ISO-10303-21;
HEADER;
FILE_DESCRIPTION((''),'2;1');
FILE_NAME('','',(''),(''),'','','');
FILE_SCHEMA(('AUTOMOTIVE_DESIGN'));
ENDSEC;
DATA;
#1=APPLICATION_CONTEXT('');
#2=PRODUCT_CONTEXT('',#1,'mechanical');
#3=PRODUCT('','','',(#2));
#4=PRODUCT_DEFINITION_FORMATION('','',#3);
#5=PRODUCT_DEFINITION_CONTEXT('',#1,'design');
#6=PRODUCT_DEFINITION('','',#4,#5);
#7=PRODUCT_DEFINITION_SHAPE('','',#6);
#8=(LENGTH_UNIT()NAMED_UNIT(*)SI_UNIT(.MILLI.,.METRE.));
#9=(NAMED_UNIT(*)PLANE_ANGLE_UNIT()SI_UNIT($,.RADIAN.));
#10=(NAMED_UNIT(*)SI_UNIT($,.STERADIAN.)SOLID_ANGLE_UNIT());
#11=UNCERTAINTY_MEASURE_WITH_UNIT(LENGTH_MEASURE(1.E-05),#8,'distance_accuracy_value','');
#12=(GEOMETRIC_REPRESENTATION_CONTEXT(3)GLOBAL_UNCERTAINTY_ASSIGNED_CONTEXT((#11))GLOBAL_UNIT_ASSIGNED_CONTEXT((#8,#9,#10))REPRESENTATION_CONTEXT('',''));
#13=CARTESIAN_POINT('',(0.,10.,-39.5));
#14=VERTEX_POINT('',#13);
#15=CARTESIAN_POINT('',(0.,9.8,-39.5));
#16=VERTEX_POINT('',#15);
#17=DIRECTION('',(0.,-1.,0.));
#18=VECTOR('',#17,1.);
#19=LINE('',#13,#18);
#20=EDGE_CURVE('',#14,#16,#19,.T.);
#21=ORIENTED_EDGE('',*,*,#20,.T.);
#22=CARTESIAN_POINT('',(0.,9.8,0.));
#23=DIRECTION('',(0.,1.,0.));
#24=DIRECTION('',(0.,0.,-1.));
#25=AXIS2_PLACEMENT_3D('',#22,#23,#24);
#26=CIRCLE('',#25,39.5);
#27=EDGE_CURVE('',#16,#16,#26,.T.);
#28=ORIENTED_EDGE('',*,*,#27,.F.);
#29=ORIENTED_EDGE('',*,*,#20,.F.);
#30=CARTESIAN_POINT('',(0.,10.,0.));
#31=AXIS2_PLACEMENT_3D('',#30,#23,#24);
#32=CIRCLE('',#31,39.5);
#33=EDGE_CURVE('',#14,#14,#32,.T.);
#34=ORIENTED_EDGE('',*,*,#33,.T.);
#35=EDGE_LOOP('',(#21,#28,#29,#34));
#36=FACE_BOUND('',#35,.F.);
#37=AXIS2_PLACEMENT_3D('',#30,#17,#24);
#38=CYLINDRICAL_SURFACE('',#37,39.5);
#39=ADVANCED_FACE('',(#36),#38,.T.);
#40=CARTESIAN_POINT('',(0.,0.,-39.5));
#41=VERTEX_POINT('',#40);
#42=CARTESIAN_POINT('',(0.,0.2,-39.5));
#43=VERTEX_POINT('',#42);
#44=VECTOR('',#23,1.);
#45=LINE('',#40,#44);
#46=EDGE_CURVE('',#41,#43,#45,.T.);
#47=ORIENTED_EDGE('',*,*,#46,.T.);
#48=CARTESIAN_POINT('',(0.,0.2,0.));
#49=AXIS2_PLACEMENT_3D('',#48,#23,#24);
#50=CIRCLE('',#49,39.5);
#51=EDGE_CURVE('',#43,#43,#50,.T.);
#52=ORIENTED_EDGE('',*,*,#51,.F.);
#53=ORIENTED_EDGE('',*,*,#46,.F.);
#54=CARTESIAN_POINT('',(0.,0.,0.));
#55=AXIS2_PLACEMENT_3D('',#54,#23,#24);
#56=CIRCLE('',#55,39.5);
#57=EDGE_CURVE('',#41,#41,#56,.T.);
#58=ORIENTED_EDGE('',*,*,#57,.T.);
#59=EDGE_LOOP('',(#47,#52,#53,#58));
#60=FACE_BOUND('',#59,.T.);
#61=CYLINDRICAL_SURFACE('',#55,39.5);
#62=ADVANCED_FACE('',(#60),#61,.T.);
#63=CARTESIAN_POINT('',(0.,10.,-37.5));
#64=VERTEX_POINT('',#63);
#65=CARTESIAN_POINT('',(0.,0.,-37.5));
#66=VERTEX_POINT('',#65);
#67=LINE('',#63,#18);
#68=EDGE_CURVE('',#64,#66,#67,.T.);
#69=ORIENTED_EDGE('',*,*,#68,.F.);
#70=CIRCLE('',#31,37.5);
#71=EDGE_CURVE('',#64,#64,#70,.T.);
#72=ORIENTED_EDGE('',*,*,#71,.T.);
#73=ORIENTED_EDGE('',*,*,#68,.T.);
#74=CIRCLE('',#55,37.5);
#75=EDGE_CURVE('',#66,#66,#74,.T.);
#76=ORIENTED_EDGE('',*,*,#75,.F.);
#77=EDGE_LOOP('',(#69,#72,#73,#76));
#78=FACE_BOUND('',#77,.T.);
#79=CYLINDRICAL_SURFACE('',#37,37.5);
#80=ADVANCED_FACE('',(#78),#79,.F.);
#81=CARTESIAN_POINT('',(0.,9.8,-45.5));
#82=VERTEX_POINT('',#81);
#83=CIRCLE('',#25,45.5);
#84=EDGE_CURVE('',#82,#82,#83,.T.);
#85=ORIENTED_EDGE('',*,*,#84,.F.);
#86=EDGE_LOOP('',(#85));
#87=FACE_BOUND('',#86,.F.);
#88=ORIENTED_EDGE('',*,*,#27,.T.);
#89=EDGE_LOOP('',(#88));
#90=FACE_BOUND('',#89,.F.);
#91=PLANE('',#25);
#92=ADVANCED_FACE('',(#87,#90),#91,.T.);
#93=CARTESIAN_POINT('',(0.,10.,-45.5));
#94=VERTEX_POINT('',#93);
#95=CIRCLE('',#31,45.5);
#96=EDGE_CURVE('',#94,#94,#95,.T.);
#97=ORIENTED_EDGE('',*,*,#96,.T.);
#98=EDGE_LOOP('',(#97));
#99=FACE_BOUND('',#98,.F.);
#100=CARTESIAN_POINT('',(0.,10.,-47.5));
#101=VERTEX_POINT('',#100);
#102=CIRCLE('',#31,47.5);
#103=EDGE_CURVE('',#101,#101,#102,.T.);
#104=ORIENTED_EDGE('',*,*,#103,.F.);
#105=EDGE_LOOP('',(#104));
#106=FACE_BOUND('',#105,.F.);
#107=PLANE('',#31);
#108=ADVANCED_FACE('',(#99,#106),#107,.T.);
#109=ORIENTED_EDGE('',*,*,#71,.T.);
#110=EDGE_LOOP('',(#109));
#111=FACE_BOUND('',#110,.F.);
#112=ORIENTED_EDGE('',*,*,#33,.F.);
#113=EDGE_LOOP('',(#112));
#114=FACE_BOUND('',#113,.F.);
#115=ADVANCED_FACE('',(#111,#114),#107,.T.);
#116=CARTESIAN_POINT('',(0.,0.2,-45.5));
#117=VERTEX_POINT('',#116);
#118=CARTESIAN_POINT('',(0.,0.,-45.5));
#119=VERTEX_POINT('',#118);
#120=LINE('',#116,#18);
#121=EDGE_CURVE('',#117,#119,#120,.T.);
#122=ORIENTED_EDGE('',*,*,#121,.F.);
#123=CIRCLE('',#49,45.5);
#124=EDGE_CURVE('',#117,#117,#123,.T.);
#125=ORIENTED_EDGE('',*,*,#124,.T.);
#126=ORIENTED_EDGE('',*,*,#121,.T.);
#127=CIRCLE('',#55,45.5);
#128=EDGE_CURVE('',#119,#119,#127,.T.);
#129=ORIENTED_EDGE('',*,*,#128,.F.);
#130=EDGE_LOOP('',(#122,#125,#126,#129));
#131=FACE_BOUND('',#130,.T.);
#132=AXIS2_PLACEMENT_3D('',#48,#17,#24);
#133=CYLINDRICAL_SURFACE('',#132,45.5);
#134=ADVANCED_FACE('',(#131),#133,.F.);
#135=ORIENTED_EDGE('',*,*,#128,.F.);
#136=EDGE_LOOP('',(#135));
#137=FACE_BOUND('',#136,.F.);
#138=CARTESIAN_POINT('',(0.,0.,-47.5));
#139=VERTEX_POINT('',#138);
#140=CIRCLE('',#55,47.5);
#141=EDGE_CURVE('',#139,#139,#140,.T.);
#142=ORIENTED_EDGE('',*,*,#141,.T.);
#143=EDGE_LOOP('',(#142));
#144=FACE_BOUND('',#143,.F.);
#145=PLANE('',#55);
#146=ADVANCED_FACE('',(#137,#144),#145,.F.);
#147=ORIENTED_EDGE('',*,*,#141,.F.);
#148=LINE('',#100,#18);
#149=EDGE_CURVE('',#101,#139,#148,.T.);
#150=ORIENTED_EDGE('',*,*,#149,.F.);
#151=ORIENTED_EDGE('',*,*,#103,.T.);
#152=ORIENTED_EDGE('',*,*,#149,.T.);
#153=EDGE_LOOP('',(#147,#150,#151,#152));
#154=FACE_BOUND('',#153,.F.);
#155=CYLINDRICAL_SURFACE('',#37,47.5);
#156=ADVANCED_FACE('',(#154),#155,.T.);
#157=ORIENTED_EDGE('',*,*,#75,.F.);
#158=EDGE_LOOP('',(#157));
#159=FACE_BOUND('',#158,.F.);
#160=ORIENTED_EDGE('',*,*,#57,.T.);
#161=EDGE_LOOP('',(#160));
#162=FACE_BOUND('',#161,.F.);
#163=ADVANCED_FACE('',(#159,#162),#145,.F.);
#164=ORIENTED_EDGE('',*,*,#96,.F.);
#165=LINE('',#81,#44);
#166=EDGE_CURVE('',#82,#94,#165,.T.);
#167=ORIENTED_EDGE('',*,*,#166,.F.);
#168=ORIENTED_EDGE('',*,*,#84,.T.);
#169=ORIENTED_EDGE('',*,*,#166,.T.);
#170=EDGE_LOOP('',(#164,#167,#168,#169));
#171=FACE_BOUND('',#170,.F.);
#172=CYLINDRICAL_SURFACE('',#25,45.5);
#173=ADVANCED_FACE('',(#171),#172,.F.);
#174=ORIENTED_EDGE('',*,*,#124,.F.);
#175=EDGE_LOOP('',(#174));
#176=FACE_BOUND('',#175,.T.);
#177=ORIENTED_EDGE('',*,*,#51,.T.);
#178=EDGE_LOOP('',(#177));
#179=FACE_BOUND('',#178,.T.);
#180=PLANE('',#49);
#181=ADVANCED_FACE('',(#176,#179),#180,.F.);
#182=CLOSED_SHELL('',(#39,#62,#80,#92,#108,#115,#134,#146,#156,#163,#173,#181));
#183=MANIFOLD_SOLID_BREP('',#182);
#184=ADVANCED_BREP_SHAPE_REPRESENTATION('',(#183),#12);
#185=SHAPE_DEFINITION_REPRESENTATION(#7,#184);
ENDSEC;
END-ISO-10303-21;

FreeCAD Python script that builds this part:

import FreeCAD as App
import Part
import Sketcher

V = App.Vector
Q = App.Units.Quantity


def add_polygon(sketch, points):
    """Adds a closed chain of lines whose ends are joined by coincident constraints."""
    first, n = sketch.GeometryCount, len(points)
    for a, b in zip(points, points[1:] + points[:1]):
        sketch.addGeometry(Part.LineSegment(App.Vector(*a, 0), App.Vector(*b, 0)), False)
    for i in range(n):
        sketch.addConstraint(Sketcher.Constraint("Coincident", first + i, 2, first + (i + 1) % n, 1))

doc = App.newDocument("Part")
body = doc.addObject("PartDesign::Body", "Body")

sketch1 = body.newObject("Sketcher::SketchObject", "Sketch")
sketch1.AttachmentSupport = (doc.getObject("YZ_Plane"), [""])
sketch1.MapMode = "FlatFace"
add_polygon(sketch1, [(10, -39.5), (10, -37.5), (0, -37.5), (0, -39.5), (0.2, -39.5), (0.2, -45.5), (0, -45.5), (0, -47.5), (10, -47.5), (10, -45.5), (9.8, -45.5), (9.8, -39.5)])
sketch1.addConstraint([
    Sketcher.Constraint("Vertical", 0),
    Sketcher.Constraint("Horizontal", 1),
    Sketcher.Constraint("Vertical", 2),
    Sketcher.Constraint("Horizontal", 3),
    Sketcher.Constraint("Vertical", 4),
    Sketcher.Constraint("Horizontal", 5),
    Sketcher.Constraint("Vertical", 6),
    Sketcher.Constraint("Horizontal", 7),
    Sketcher.Constraint("Vertical", 8),
    Sketcher.Constraint("Horizontal", 9),
    Sketcher.Constraint("Vertical", 10),
    Sketcher.Constraint("Horizontal", 11),
    Sketcher.Constraint("PointOnObject", 1, 2, -2),
    Sketcher.Constraint("PointOnObject", 5, 2, -2),
    Sketcher.Constraint("Horizontal", 5, 2, 8, 2),
    Sketcher.Constraint("Horizontal", 3, 2, 10, 2),
    Sketcher.Constraint("Vertical", 0, 2, 7, 2),
    Sketcher.Constraint("Equal", 5, 9),
    Sketcher.Constraint("Equal", 2, 6),
    Sketcher.Constraint("DistanceX", 1, 2, 1, 1, Q("10 mm")),
    Sketcher.Constraint("DistanceY", 0, 1, 0, 2, Q("2 mm")),
    Sketcher.Constraint("DistanceX", 3, 1, 3, 2, Q("0.2 mm")),
    Sketcher.Constraint("DistanceY", 6, 2, 1, 2, Q("10 mm")),
    Sketcher.Constraint("DistanceY", 0, 2, -1, 1, Q("37.5 mm")),
])
revolution = body.newObject("PartDesign::Revolution", "Revolution")
revolution.Profile = sketch1
revolution.ReferenceAxis = (sketch1, ["H_Axis"])
revolution.Angle = 360

doc.recompute()
